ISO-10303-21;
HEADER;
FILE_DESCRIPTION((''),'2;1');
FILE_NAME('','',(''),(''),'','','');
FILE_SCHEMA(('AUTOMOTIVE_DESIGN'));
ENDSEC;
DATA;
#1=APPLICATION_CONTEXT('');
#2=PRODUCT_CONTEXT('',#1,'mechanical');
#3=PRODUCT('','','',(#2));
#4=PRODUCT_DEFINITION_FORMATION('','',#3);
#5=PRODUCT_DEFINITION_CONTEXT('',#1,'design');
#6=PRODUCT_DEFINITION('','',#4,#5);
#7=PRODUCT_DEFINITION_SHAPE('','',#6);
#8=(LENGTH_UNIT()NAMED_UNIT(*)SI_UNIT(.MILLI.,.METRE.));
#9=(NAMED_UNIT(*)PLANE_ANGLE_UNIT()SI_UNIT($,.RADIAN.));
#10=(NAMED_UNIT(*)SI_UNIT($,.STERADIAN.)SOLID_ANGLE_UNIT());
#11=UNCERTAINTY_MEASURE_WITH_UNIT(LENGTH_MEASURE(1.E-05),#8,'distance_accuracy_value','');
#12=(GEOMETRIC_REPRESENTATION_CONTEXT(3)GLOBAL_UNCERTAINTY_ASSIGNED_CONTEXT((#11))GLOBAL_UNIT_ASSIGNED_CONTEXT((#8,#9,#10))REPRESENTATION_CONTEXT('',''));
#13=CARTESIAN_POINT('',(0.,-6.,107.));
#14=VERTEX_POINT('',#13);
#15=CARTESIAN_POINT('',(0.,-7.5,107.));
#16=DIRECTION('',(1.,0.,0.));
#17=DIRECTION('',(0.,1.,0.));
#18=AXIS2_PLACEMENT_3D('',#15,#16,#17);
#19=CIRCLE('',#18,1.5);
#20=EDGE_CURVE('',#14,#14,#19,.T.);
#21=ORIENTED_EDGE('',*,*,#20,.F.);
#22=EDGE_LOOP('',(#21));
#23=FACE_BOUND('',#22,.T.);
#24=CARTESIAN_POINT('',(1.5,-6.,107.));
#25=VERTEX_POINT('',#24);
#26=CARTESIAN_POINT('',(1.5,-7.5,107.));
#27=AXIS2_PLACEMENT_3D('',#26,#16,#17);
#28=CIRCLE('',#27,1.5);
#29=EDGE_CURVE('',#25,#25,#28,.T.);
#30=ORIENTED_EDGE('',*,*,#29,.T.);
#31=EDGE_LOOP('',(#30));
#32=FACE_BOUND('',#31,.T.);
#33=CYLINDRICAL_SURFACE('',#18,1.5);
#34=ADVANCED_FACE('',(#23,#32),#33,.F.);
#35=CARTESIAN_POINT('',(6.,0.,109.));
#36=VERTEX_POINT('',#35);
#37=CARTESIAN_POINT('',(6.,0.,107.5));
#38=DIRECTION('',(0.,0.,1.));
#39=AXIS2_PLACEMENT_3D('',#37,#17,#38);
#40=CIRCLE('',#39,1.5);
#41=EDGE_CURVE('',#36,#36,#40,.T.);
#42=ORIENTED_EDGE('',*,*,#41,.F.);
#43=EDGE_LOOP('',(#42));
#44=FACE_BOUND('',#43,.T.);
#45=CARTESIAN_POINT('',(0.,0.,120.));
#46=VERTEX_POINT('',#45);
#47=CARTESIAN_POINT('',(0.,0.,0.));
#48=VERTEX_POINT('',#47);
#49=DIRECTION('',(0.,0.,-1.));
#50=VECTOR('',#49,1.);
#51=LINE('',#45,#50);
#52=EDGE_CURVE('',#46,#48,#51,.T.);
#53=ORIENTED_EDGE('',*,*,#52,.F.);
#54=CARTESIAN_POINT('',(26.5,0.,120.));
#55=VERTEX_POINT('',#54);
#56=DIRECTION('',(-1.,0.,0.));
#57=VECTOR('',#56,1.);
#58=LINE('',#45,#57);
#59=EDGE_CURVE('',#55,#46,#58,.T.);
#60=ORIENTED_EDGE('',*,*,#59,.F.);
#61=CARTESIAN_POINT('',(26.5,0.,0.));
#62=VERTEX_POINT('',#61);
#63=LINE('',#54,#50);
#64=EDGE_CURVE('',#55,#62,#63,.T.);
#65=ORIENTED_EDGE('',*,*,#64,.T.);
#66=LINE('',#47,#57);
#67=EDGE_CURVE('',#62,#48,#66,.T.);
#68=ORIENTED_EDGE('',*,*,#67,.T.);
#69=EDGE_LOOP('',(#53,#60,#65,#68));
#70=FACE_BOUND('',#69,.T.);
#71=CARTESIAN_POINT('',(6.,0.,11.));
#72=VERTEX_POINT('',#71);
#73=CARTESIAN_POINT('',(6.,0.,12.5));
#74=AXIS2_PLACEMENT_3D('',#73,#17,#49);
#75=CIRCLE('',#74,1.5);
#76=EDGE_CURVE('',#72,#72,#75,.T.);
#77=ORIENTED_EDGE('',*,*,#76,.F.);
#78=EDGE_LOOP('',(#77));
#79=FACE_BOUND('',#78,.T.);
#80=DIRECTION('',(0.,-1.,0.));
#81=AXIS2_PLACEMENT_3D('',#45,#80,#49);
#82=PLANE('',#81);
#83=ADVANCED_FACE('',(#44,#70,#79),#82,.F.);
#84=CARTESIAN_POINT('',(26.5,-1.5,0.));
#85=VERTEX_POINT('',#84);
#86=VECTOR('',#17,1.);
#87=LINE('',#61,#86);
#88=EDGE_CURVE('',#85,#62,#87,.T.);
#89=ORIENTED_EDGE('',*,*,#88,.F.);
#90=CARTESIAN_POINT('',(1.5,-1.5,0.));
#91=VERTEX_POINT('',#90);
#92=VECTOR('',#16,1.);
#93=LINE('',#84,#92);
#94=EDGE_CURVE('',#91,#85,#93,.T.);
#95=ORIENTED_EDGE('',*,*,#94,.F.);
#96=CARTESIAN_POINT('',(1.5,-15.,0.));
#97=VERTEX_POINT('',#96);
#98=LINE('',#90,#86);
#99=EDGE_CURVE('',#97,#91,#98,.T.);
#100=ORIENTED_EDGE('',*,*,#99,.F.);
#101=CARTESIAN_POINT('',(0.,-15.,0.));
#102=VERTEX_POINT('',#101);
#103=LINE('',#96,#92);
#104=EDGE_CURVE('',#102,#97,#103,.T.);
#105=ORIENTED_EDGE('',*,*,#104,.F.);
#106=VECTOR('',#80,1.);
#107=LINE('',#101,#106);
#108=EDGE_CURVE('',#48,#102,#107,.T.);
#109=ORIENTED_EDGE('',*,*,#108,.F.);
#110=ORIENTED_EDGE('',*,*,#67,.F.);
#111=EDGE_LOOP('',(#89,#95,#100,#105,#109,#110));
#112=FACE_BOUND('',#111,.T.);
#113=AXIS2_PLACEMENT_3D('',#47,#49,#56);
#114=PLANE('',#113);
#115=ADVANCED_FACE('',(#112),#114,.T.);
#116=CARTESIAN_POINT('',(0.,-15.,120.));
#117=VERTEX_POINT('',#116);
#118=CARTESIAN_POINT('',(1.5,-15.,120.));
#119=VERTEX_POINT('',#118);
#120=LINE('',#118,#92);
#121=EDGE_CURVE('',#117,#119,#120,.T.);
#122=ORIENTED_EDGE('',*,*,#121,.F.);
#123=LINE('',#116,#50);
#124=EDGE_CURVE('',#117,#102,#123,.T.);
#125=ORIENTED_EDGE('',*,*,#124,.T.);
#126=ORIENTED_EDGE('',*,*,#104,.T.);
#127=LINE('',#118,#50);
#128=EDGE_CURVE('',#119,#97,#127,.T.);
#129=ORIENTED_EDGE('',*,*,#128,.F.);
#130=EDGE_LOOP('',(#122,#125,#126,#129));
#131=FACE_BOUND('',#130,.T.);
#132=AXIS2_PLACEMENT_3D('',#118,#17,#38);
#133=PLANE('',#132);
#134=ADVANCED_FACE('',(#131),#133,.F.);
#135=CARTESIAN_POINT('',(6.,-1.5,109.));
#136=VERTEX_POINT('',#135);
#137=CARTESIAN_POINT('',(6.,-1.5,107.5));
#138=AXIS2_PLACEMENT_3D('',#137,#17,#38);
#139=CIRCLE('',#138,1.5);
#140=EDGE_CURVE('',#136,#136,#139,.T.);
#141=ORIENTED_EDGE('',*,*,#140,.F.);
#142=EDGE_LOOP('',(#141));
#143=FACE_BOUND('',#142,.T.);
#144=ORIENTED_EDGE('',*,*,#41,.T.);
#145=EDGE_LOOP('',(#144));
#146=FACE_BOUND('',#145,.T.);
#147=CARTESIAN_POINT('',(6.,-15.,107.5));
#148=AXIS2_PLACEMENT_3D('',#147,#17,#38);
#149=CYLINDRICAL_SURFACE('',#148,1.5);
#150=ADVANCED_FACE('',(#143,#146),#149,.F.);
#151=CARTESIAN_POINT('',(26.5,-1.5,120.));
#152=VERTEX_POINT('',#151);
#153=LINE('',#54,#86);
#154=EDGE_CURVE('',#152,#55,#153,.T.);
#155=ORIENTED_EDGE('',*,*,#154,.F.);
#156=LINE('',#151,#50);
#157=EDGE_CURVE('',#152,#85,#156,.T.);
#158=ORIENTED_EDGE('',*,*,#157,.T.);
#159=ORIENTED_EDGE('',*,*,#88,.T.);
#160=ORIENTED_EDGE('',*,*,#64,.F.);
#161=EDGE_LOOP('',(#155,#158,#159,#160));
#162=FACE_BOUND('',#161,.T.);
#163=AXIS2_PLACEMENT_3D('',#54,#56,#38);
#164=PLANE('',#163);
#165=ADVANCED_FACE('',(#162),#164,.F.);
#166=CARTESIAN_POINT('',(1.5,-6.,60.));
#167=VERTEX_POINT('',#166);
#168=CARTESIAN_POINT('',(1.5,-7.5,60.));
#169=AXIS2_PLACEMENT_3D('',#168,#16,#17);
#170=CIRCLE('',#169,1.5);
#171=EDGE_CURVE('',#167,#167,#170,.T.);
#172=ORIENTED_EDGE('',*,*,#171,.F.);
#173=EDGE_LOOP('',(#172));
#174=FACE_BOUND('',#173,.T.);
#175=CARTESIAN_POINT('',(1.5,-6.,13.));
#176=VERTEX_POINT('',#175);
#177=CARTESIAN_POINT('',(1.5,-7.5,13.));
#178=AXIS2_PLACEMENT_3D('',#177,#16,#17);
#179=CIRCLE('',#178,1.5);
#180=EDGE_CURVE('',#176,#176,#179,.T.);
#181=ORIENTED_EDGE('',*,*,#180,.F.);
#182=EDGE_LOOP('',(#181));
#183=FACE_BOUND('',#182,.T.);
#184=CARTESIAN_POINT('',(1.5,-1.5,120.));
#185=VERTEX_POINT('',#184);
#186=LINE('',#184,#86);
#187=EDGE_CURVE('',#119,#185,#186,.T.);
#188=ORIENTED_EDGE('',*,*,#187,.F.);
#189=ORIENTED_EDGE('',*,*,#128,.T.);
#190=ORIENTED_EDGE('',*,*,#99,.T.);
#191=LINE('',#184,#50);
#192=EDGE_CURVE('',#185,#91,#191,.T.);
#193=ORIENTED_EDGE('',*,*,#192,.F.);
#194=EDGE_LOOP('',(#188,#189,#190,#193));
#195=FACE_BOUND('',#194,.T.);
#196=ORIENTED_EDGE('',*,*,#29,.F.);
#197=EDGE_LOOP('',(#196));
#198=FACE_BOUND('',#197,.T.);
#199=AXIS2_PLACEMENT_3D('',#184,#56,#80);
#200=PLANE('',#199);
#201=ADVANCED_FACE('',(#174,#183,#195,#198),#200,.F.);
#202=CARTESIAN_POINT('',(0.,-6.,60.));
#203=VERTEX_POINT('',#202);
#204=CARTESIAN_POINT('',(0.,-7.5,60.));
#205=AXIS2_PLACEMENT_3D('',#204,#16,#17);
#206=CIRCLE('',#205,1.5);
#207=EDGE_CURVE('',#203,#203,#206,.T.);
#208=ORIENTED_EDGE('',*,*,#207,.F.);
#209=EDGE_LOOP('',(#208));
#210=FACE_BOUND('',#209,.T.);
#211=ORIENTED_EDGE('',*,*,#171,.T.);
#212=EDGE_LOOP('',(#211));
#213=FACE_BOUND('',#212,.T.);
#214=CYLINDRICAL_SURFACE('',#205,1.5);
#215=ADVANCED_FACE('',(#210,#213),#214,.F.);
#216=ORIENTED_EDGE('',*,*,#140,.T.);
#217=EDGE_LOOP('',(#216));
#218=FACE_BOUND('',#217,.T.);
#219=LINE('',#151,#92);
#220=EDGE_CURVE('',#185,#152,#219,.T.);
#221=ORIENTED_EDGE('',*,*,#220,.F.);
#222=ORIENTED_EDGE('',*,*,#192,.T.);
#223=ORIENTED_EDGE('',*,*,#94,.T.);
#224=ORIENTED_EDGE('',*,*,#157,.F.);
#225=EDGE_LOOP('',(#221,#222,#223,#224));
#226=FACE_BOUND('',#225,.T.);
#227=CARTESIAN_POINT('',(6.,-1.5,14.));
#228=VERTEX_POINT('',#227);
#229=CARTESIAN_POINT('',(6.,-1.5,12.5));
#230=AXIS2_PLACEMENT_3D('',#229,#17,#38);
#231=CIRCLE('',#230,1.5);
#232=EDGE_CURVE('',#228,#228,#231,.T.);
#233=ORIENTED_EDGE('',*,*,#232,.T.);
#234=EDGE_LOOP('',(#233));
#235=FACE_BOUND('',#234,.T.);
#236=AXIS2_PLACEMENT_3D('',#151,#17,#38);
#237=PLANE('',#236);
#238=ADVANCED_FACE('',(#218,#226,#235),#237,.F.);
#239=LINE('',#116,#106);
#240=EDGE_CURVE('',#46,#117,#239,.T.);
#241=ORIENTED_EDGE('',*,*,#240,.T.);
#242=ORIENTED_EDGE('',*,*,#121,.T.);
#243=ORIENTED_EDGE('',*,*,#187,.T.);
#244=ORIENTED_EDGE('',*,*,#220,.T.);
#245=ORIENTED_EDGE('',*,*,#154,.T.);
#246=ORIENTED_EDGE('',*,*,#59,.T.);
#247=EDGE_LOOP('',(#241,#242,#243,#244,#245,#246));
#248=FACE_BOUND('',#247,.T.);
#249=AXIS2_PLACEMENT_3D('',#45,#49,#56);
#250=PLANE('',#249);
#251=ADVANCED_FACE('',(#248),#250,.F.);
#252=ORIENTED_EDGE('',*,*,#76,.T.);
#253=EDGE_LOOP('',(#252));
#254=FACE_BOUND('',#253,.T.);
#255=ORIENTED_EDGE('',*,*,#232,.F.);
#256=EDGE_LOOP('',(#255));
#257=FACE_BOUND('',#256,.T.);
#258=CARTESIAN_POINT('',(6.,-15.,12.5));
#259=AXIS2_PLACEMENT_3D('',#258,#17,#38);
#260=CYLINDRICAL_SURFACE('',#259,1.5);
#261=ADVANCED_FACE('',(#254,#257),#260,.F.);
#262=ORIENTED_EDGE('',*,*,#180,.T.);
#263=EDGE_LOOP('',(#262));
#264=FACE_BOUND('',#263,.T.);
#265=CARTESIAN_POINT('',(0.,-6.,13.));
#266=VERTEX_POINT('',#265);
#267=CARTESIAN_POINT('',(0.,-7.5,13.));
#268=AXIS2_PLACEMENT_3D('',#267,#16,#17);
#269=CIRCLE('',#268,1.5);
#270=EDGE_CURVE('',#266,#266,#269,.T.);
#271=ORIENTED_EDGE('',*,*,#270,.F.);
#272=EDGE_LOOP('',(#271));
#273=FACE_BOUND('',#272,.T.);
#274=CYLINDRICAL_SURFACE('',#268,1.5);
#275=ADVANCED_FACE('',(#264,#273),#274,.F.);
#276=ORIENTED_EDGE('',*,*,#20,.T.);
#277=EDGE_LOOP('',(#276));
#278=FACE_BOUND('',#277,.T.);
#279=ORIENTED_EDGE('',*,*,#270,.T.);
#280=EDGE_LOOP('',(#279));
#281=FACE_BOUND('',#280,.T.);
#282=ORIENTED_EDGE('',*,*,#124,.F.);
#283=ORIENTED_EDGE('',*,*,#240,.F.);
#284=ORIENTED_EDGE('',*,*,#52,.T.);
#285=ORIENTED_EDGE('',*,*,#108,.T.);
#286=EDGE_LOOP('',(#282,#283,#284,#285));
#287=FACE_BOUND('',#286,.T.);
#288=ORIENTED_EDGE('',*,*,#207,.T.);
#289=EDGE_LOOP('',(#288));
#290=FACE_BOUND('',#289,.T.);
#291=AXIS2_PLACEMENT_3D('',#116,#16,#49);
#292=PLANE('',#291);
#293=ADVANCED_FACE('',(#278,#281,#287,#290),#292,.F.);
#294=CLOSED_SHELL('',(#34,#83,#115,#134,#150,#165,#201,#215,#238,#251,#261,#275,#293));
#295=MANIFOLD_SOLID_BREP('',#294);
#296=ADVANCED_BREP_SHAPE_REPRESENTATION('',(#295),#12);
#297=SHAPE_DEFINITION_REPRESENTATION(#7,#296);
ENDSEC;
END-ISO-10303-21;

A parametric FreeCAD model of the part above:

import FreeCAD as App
import Part
import Sketcher

V = App.Vector


def add_polygon(sketch, points):
    """Adds a closed chain of lines whose ends are joined by coincident constraints."""
    first, n = sketch.GeometryCount, len(points)
    for a, b in zip(points, points[1:] + points[:1]):
        sketch.addGeometry(Part.LineSegment(App.Vector(*a, 0), App.Vector(*b, 0)), False)
    for i in range(n):
        sketch.addConstraint(Sketcher.Constraint("Coincident", first + i, 2, first + (i + 1) % n, 1))

doc = App.newDocument("Part")
body = doc.addObject("PartDesign::Body", "Body")

sketch1 = body.newObject("Sketcher::SketchObject", "Sketch")
sketch1.AttachmentSupport = (doc.getObject("XY_Plane"), [""])
sketch1.MapMode = "FlatFace"
add_polygon(sketch1, [(26.5, 0), (0, 0), (0, -15), (1.5, -15), (1.5, -1.5), (26.5, -1.5)])
sketch1.addConstraint(Sketcher.Constraint("Horizontal", 0))
sketch1.addConstraint(Sketcher.Constraint("Vertical", 1))
sketch1.addConstraint(Sketcher.Constraint("Horizontal", 2))
sketch1.addConstraint(Sketcher.Constraint("Vertical", 3))
sketch1.addConstraint(Sketcher.Constraint("Horizontal", 4))
sketch1.addConstraint(Sketcher.Constraint("Vertical", 5))
sketch1.addConstraint(Sketcher.Constraint("Coincident", 0, 2, -1, 1))
sketch1.addConstraint(Sketcher.Constraint("Equal", 2, 5))
sketch1.addConstraint(Sketcher.Constraint("DistanceX", 4, 1, 4, 2, 25.0))
sketch1.addConstraint(Sketcher.Constraint("DistanceY", 1, 2, 1, 1, 15.0))
sketch1.addConstraint(Sketcher.Constraint("DistanceX", 0, 2, 0, 1, 26.5))
pad1 = body.newObject("PartDesign::Pad", "Pad")
pad1.Profile = sketch1
pad1.Length = 120

sketch2 = body.newObject("Sketcher::SketchObject", "Sketch001")
sketch2.AttachmentSupport = (doc.getObject("YZ_Plane"), [""])
sketch2.MapMode = "FlatFace"
sketch2.AttachmentOffset = App.Placement(V(0, 0, 1.5), App.Rotation())
sketch2.addGeometry(Part.Circle(V(-7.5, 60, 0), V(0, 0, 1), 1.5), False)
sketch2.addGeometry(Part.Circle(V(-7.5, 107, 0), V(0, 0, 1), 1.5), False)
sketch2.addGeometry(Part.Circle(V(-7.5, 13, 0), V(0, 0, 1), 1.5), False)
sketch2.addConstraint(Sketcher.Constraint("Equal", 0, 1))
sketch2.addConstraint(Sketcher.Constraint("Equal", 1, 2))
sketch2.addConstraint(Sketcher.Constraint("Vertical", 0, 3, 1, 3))
sketch2.addConstraint(Sketcher.Constraint("Vertical", 1, 3, 2, 3))
sketch2.addConstraint(Sketcher.Constraint("Diameter", 0, 3.0))
sketch2.addConstraint(Sketcher.Constraint("DistanceY", -1, 1, 0, 3, 60.0))
sketch2.addConstraint(Sketcher.Constraint("DistanceY", -1, 1, 1, 3, 107.0))
sketch2.addConstraint(Sketcher.Constraint("DistanceY", -1, 1, 2, 3, 13.0))
sketch2.addConstraint(Sketcher.Constraint("DistanceX", 0, 3, -1, 1, 7.5))
pocket1 = body.newObject("PartDesign::Pocket", "Pocket")
pocket1.Profile = sketch2
pocket1.Type = "ThroughAll"

sketch3 = body.newObject("Sketcher::SketchObject", "Sketch002")
sketch3.AttachmentSupport = (doc.getObject("XZ_Plane"), [""])
sketch3.MapMode = "FlatFace"
sketch3.addGeometry(Part.Circle(V(6, 107.5, 0), V(0, 0, 1), 1.5), False)
sketch3.addGeometry(Part.Circle(V(6, 12.5, 0), V(0, 0, 1), 1.5), False)
sketch3.addConstraint(Sketcher.Constraint("Equal", 0, 1))
sketch3.addConstraint(Sketcher.Constraint("Vertical", 0, 3, 1, 3))
sketch3.addConstraint(Sketcher.Constraint("Diameter", 0, 3.0))
sketch3.addConstraint(Sketcher.Constraint("DistanceX", -1, 1, 0, 3, 6.0))
sketch3.addConstraint(Sketcher.Constraint("DistanceY", 1, 3, 0, 3, 95.0))
sketch3.addConstraint(Sketcher.Constraint("DistanceY", -1, 1, 0, 3, 107.5))
pocket2 = body.newObject("PartDesign::Pocket", "Pocket001")
pocket2.Profile = sketch3
pocket2.Type = "ThroughAll"
pocket2.Reversed = True

doc.recompute()
